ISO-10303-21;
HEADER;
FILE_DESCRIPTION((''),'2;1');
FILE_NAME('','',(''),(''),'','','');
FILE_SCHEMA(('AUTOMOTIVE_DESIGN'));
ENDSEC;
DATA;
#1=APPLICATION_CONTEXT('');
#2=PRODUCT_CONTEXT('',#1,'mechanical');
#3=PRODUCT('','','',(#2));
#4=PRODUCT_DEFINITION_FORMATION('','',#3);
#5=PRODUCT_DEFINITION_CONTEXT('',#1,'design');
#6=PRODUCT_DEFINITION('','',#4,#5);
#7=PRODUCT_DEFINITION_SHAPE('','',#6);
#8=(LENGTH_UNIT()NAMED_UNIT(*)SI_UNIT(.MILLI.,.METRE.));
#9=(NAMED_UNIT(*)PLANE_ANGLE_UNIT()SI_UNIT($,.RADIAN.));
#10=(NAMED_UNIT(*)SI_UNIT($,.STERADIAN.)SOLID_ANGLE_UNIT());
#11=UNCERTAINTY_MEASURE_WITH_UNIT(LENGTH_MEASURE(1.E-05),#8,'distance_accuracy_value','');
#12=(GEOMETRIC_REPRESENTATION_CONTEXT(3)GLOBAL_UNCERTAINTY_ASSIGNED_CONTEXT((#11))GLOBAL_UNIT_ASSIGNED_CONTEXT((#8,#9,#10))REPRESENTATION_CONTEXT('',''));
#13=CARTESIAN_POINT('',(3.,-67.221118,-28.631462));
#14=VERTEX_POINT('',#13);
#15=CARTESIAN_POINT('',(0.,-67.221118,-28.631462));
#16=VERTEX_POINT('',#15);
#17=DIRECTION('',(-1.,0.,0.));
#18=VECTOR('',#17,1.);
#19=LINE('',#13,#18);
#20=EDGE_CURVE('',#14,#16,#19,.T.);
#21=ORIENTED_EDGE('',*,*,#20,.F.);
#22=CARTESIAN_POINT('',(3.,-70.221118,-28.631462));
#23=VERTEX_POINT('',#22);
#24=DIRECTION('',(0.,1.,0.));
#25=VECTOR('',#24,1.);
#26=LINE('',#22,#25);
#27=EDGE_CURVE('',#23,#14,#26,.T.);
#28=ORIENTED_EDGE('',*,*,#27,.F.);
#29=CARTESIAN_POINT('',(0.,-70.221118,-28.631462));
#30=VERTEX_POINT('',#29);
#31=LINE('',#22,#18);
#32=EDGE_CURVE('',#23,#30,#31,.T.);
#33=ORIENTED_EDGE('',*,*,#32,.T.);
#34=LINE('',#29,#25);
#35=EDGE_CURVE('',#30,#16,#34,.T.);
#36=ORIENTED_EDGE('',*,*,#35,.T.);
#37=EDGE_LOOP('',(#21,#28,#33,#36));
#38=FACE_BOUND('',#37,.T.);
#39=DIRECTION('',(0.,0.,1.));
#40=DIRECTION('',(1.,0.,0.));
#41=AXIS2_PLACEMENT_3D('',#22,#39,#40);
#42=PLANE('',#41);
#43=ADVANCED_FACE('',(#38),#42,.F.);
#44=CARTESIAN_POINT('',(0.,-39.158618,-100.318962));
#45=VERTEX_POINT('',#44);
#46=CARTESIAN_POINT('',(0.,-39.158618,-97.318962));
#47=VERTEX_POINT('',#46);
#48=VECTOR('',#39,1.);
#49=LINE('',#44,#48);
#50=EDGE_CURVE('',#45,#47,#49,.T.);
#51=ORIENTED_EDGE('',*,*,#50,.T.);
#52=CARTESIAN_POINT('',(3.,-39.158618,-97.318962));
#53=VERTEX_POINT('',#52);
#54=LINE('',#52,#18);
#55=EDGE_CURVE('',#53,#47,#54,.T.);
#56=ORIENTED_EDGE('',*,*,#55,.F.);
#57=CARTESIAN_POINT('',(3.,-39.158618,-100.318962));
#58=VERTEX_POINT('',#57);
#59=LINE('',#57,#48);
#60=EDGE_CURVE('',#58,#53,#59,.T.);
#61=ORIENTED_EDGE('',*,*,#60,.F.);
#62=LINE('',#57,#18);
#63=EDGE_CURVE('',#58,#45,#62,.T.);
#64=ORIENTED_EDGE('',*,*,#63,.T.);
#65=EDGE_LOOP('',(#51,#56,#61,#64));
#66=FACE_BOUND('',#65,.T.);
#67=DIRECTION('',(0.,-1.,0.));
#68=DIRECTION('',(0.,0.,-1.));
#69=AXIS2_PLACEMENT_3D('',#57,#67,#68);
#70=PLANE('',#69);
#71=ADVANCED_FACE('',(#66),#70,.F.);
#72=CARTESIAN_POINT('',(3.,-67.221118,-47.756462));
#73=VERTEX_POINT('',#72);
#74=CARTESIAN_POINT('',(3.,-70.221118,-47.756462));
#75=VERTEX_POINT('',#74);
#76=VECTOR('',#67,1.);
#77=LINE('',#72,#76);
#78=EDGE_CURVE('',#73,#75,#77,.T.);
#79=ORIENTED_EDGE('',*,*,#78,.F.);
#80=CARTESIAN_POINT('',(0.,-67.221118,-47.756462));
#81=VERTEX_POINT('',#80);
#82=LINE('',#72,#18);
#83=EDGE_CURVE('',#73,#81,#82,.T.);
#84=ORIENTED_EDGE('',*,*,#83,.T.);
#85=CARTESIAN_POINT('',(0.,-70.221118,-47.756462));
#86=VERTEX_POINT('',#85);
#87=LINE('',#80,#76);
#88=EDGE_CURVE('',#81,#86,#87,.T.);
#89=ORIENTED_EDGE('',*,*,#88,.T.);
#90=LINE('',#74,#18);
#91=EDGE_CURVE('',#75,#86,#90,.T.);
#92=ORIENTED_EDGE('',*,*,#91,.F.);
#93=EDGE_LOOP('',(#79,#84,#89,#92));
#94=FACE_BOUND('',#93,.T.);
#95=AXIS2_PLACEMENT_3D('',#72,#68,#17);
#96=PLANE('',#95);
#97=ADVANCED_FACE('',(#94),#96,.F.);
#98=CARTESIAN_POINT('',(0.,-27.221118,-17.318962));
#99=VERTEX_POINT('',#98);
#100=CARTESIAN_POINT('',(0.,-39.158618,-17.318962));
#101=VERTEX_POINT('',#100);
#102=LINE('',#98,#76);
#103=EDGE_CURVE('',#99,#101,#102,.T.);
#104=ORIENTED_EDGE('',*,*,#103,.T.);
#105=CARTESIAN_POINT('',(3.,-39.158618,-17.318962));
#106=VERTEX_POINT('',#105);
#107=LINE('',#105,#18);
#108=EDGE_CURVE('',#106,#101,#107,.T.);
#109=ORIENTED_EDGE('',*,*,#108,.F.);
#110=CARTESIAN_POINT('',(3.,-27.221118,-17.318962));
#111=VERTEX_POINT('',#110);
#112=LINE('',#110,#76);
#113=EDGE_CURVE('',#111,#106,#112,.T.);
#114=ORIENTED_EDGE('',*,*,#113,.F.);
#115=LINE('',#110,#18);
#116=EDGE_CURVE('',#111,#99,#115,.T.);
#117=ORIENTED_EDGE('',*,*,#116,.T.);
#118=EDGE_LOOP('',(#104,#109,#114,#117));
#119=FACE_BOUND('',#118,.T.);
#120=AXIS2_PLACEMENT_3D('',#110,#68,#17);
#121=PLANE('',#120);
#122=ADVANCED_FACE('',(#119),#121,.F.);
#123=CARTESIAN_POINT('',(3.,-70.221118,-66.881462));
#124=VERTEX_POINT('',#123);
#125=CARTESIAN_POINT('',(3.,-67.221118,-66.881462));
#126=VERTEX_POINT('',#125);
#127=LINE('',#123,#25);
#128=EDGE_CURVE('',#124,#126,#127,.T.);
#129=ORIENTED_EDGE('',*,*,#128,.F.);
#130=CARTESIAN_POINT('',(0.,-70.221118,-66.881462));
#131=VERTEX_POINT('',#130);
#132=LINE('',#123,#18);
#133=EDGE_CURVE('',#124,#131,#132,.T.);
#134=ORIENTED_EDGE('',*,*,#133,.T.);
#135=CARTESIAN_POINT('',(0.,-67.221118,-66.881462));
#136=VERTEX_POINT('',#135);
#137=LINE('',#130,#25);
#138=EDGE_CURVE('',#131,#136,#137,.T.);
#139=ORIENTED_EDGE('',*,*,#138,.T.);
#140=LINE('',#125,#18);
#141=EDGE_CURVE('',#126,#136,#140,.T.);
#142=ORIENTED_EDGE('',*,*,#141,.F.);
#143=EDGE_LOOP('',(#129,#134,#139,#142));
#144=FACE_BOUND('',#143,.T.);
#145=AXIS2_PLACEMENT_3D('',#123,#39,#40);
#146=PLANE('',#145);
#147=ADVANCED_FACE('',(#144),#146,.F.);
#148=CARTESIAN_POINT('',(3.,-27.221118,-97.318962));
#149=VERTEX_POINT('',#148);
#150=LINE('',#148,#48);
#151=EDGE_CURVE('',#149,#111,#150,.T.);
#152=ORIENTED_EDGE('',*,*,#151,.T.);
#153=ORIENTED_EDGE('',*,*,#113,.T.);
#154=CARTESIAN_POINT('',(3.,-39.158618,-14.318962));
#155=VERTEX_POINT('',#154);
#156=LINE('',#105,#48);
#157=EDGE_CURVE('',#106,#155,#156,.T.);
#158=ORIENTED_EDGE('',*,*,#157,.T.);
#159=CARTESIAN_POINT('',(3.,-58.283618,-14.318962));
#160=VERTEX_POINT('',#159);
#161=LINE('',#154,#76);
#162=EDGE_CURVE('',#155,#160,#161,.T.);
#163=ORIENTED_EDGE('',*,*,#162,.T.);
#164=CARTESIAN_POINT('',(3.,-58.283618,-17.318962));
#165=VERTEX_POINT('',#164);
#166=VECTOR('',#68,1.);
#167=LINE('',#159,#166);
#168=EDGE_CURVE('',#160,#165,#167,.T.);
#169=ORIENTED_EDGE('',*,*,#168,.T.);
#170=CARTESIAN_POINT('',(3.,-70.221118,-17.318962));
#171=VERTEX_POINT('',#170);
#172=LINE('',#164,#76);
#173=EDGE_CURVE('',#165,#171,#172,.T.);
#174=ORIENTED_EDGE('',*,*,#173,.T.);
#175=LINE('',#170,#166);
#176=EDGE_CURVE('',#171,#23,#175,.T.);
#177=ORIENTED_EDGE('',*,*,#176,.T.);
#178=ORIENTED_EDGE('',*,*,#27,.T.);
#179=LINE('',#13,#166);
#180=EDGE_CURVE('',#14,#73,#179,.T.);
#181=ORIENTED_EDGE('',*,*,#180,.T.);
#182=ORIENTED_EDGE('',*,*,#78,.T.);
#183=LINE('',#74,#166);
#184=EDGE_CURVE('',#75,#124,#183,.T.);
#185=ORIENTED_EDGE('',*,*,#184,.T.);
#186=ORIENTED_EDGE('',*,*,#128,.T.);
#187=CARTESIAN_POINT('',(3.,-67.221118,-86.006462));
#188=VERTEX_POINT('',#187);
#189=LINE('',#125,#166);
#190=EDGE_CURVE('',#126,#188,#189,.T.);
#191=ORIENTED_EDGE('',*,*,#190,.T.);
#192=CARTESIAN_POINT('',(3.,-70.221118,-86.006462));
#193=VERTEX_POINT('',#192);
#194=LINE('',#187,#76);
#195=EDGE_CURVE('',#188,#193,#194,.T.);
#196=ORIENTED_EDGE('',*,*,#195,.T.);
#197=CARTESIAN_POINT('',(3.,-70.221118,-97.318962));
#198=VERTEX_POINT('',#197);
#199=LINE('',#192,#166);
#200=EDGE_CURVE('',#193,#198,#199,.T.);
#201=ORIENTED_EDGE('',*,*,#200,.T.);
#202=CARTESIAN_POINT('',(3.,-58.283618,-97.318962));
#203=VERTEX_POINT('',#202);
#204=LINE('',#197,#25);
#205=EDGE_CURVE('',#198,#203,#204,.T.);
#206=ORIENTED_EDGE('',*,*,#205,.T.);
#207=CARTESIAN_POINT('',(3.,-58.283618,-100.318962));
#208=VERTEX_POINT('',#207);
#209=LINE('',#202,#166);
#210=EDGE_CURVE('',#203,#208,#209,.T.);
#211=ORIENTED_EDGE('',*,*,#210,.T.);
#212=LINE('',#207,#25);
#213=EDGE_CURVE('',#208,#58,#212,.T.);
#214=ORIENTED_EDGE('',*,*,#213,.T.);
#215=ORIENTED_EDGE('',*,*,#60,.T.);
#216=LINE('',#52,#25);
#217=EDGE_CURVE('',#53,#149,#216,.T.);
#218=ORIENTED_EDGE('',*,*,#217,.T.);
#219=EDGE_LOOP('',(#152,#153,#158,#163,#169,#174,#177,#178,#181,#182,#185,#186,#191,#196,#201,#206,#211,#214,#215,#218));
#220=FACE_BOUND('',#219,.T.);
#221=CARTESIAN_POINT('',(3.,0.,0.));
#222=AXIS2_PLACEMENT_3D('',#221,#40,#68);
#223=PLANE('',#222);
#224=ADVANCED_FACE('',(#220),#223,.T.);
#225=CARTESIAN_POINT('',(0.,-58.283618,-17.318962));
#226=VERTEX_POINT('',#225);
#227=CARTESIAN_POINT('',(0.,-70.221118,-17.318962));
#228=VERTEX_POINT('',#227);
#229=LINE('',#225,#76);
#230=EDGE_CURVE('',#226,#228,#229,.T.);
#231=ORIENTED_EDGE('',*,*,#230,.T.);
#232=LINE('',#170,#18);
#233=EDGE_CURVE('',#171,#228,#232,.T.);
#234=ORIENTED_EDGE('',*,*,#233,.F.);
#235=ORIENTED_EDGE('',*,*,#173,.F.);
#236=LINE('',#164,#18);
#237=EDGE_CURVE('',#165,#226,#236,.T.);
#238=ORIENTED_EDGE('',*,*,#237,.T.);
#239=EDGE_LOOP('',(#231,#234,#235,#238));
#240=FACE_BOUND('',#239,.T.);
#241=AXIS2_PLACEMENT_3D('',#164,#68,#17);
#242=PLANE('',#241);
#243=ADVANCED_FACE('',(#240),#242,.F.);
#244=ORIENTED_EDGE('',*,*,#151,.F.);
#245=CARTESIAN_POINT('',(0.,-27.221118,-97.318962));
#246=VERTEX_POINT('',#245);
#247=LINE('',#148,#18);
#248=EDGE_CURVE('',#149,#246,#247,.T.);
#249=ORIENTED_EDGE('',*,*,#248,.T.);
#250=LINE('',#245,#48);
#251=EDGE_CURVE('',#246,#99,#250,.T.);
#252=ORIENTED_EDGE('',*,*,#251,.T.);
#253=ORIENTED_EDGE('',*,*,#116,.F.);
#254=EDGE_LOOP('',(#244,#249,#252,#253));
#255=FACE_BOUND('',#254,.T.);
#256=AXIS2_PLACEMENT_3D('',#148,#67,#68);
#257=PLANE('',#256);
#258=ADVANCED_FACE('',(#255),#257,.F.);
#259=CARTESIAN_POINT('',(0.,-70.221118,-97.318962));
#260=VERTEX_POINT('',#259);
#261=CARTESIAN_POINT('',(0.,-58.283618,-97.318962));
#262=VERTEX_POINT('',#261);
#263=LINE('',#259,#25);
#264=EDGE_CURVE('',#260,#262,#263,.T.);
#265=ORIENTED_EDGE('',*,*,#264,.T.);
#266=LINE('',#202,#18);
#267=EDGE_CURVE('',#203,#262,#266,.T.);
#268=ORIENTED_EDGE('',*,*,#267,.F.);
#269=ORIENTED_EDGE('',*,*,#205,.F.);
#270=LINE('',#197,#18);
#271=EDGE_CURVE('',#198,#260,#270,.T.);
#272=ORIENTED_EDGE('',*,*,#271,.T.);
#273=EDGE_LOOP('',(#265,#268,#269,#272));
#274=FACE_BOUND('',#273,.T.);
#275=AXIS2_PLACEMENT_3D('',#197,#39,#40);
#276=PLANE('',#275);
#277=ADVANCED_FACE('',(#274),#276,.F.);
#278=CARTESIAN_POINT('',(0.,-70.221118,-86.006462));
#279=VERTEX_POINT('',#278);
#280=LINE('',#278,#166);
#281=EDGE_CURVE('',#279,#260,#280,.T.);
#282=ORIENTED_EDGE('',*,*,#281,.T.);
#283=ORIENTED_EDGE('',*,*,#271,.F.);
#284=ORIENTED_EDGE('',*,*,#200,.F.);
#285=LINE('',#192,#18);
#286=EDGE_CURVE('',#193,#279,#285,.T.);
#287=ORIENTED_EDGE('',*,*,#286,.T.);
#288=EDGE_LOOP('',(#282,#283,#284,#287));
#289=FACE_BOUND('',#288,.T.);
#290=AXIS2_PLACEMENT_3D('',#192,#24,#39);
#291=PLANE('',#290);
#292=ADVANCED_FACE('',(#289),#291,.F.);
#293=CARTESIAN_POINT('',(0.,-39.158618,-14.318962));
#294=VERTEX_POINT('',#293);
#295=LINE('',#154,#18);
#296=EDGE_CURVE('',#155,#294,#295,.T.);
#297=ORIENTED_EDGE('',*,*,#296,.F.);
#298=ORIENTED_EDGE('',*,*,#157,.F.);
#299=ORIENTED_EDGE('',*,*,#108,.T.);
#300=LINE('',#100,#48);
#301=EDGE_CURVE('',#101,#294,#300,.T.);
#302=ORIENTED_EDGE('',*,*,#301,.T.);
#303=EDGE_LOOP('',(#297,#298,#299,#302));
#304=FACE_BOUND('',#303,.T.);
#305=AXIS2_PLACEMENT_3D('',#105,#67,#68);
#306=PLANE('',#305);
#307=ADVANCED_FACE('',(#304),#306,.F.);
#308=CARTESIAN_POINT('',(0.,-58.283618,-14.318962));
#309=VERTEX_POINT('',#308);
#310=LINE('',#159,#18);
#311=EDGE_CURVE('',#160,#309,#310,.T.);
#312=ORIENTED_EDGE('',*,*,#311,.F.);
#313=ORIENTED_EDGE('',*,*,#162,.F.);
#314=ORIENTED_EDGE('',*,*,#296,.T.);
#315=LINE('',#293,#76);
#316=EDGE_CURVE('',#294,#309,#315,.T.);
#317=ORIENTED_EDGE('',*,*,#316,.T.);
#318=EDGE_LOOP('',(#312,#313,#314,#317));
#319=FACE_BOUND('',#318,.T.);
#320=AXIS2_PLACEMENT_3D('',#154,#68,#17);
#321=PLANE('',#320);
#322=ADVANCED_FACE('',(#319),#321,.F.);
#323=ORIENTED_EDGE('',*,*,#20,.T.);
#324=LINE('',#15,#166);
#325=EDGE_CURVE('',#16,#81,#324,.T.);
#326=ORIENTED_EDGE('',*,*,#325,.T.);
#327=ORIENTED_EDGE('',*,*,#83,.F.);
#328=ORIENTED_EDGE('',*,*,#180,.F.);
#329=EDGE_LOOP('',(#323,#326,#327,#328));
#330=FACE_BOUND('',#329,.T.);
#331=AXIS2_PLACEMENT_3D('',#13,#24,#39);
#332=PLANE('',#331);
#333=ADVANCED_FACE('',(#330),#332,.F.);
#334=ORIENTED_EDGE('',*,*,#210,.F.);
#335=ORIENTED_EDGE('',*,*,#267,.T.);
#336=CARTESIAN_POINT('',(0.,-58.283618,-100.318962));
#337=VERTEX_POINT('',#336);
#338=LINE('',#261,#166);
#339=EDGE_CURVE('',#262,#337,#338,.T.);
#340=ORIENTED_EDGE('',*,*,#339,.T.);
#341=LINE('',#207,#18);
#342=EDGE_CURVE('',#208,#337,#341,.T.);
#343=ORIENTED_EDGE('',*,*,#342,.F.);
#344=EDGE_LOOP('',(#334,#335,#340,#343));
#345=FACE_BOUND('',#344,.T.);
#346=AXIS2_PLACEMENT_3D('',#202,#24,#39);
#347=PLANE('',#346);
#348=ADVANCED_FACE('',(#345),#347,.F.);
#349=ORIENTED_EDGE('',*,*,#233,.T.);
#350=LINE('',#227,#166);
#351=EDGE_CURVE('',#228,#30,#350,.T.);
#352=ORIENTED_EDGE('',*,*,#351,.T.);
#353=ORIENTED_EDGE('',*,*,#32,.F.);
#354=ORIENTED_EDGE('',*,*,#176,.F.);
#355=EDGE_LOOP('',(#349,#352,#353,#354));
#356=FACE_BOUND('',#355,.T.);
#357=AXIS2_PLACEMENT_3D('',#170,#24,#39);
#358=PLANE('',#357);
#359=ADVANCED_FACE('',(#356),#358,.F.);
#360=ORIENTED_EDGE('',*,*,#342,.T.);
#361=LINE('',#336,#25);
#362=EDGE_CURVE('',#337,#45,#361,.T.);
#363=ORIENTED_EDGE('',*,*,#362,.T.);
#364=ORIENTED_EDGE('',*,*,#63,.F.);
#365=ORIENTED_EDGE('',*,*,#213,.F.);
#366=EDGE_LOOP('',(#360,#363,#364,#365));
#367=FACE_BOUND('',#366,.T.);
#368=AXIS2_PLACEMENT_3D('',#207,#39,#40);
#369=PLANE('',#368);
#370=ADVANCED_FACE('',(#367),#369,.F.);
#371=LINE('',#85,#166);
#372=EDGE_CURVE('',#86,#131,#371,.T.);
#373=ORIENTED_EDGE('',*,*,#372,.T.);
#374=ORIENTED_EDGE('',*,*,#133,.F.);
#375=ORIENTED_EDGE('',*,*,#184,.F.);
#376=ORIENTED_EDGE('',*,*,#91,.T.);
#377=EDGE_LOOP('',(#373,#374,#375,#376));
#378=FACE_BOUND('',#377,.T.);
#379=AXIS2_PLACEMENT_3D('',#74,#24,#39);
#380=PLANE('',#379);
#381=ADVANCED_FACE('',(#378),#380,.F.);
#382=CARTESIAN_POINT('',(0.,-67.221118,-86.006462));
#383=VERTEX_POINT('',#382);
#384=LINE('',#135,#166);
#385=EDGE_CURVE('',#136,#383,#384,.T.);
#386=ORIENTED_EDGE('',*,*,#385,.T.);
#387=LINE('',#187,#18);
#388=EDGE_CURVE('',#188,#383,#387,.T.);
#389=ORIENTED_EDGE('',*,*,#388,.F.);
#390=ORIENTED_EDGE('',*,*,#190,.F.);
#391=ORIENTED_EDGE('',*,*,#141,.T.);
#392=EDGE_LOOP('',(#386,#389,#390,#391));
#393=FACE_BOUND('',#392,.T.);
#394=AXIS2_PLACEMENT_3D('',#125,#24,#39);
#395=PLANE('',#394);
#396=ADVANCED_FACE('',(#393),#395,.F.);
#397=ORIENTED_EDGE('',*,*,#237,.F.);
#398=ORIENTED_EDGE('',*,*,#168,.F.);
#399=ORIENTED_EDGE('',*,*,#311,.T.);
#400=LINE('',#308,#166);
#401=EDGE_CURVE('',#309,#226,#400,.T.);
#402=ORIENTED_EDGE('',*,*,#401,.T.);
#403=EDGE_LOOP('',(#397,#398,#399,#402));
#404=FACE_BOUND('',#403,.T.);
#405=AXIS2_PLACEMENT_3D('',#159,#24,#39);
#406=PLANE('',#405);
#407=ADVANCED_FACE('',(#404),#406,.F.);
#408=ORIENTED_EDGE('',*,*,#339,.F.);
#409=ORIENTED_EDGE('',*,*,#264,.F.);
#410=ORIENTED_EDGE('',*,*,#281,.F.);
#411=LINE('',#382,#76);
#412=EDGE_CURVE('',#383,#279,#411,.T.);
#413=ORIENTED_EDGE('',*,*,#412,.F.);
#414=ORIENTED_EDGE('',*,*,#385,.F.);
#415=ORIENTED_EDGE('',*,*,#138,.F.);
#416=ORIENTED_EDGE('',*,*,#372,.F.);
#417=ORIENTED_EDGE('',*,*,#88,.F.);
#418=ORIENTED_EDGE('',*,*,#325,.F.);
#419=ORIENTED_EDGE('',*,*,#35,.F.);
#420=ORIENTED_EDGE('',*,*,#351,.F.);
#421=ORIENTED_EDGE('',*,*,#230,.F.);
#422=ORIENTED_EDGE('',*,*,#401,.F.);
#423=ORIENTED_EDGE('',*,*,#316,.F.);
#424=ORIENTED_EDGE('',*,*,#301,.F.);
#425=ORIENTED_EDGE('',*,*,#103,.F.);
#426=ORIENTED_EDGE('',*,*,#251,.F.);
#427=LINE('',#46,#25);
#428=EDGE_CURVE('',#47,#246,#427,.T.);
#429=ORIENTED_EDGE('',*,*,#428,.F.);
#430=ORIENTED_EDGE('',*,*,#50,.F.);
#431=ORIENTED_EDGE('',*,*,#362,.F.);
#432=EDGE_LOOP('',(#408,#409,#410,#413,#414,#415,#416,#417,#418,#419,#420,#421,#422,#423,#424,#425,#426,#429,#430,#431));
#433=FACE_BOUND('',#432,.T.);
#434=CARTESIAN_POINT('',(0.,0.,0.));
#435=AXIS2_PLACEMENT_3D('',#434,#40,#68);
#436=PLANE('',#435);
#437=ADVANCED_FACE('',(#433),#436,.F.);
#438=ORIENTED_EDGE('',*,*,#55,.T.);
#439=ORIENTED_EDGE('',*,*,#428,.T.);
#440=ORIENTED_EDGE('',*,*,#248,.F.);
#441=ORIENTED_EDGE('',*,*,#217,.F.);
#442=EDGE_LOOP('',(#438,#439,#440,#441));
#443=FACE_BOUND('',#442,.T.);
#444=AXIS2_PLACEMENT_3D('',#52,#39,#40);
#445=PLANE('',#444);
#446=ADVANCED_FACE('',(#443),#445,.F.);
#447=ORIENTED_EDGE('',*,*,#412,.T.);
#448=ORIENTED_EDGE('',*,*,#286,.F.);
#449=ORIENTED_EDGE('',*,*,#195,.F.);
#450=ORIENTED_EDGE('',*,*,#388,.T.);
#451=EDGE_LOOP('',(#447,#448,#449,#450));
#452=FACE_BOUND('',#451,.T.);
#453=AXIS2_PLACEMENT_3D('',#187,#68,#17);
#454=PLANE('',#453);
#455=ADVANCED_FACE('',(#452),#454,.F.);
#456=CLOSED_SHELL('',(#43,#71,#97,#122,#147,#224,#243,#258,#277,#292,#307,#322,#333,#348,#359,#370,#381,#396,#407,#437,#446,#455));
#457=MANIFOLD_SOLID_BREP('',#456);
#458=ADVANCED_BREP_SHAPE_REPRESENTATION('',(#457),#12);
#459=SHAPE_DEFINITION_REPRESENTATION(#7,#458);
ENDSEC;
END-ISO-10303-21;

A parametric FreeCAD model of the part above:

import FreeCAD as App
import Part
import Sketcher

V = App.Vector


def add_polygon(sketch, points):
    """Adds a closed chain of lines whose ends are joined by coincident constraints."""
    first, n = sketch.GeometryCount, len(points)
    for a, b in zip(points, points[1:] + points[:1]):
        sketch.addGeometry(Part.LineSegment(App.Vector(*a, 0), App.Vector(*b, 0)), False)
    for i in range(n):
        sketch.addConstraint(Sketcher.Constraint("Coincident", first + i, 2, first + (i + 1) % n, 1))

doc = App.newDocument("Part")
body = doc.addObject("PartDesign::Body", "Body")

# Sketch on YZ plane
sketch1 = body.newObject("Sketcher::SketchObject", "Sketch")
sketch1.AttachmentSupport = (doc.getObject("YZ_Plane"), [""])
sketch1.MapMode = "FlatFace"
add_polygon(sketch1, [(-27.221118, -17.318962), (-39.158618, -17.318962), (-39.158618, -14.318962), (-58.283618, -14.318962), (-58.283618, -17.318962), (-70.221118, -17.318962), (-70.221118, -28.631462), (-67.221118, -28.631462), (-67.221118, -47.756462), (-70.221118, -47.756462), (-70.221118, -66.881462), (-67.221118, -66.881462), (-67.221118, -86.006462), (-70.221118, -86.006462), (-70.221118, -97.318962), (-58.283618, -97.318962), (-58.283618, -100.318962), (-39.158618, -100.318962), (-39.158618, -97.318962), (-27.221118, -97.318962)])  # lines 0-19
sketch1.addConstraint([
    Sketcher.Constraint("Horizontal", 0),
    Sketcher.Constraint("Vertical", 1),
    Sketcher.Constraint("Horizontal", 2),
    Sketcher.Constraint("Vertical", 3),
    Sketcher.Constraint("Horizontal", 4),
    Sketcher.Constraint("Vertical", 5),
    Sketcher.Constraint("Horizontal", 6),
    Sketcher.Constraint("Vertical", 7),
    Sketcher.Constraint("Horizontal", 8),
    Sketcher.Constraint("Vertical", 9),
    Sketcher.Constraint("Horizontal", 10),
    Sketcher.Constraint("Vertical", 11),
    Sketcher.Constraint("Horizontal", 12),
    Sketcher.Constraint("Vertical", 13),
    Sketcher.Constraint("Horizontal", 14),
    Sketcher.Constraint("Vertical", 15),
    Sketcher.Constraint("Horizontal", 16),
    Sketcher.Constraint("Vertical", 17),
    Sketcher.Constraint("Horizontal", 18),
    Sketcher.Constraint("Vertical", 19),
    Sketcher.Constraint("Horizontal", 0, 2, 3, 2),
    Sketcher.Constraint("Horizontal", 14, 2, 17, 2),
    Sketcher.Constraint("Vertical", 5, 2, 8, 2),
    Sketcher.Constraint("Vertical", 7, 2, 10, 2),
    Sketcher.Constraint("Vertical", 9, 2, 12, 2),
    Sketcher.Constraint("Vertical", 3, 2, 14, 2),
    Sketcher.Constraint("Vertical", 1, 2, 16, 2),
    Sketcher.Constraint("Equal", 0, 4),
    Sketcher.Constraint("Equal", 12, 1),
    Sketcher.Constraint("Equal", 16, 7),
    Sketcher.Constraint("Equal", 7, 9),
    Sketcher.Constraint("Equal", 9, 11),
    Sketcher.Constraint("Equal", 5, 13),
    Sketcher.Constraint("Equal", 3, 15),
    Sketcher.Constraint("DistanceX", 6, 1, 6, 2, 3.0),
    Sketcher.Constraint("DistanceY", 19, 1, 19, 2, 80.0),
    Sketcher.Constraint("DistanceX", 11, 2, 18, 2, 40.0),
    Sketcher.Constraint("DistanceX", 2, 2, 2, 1, 19.125),
    Sketcher.Constraint("DistanceY", 0, 2, -1, 1, 17.318962),
    Sketcher.Constraint("DistanceX", 0, 2, -1, 1, 39.158618),
])
pad1 = body.newObject("PartDesign::Pad", "Pad")
pad1.Profile = sketch1
pad1.Length = 3

doc.recompute()
